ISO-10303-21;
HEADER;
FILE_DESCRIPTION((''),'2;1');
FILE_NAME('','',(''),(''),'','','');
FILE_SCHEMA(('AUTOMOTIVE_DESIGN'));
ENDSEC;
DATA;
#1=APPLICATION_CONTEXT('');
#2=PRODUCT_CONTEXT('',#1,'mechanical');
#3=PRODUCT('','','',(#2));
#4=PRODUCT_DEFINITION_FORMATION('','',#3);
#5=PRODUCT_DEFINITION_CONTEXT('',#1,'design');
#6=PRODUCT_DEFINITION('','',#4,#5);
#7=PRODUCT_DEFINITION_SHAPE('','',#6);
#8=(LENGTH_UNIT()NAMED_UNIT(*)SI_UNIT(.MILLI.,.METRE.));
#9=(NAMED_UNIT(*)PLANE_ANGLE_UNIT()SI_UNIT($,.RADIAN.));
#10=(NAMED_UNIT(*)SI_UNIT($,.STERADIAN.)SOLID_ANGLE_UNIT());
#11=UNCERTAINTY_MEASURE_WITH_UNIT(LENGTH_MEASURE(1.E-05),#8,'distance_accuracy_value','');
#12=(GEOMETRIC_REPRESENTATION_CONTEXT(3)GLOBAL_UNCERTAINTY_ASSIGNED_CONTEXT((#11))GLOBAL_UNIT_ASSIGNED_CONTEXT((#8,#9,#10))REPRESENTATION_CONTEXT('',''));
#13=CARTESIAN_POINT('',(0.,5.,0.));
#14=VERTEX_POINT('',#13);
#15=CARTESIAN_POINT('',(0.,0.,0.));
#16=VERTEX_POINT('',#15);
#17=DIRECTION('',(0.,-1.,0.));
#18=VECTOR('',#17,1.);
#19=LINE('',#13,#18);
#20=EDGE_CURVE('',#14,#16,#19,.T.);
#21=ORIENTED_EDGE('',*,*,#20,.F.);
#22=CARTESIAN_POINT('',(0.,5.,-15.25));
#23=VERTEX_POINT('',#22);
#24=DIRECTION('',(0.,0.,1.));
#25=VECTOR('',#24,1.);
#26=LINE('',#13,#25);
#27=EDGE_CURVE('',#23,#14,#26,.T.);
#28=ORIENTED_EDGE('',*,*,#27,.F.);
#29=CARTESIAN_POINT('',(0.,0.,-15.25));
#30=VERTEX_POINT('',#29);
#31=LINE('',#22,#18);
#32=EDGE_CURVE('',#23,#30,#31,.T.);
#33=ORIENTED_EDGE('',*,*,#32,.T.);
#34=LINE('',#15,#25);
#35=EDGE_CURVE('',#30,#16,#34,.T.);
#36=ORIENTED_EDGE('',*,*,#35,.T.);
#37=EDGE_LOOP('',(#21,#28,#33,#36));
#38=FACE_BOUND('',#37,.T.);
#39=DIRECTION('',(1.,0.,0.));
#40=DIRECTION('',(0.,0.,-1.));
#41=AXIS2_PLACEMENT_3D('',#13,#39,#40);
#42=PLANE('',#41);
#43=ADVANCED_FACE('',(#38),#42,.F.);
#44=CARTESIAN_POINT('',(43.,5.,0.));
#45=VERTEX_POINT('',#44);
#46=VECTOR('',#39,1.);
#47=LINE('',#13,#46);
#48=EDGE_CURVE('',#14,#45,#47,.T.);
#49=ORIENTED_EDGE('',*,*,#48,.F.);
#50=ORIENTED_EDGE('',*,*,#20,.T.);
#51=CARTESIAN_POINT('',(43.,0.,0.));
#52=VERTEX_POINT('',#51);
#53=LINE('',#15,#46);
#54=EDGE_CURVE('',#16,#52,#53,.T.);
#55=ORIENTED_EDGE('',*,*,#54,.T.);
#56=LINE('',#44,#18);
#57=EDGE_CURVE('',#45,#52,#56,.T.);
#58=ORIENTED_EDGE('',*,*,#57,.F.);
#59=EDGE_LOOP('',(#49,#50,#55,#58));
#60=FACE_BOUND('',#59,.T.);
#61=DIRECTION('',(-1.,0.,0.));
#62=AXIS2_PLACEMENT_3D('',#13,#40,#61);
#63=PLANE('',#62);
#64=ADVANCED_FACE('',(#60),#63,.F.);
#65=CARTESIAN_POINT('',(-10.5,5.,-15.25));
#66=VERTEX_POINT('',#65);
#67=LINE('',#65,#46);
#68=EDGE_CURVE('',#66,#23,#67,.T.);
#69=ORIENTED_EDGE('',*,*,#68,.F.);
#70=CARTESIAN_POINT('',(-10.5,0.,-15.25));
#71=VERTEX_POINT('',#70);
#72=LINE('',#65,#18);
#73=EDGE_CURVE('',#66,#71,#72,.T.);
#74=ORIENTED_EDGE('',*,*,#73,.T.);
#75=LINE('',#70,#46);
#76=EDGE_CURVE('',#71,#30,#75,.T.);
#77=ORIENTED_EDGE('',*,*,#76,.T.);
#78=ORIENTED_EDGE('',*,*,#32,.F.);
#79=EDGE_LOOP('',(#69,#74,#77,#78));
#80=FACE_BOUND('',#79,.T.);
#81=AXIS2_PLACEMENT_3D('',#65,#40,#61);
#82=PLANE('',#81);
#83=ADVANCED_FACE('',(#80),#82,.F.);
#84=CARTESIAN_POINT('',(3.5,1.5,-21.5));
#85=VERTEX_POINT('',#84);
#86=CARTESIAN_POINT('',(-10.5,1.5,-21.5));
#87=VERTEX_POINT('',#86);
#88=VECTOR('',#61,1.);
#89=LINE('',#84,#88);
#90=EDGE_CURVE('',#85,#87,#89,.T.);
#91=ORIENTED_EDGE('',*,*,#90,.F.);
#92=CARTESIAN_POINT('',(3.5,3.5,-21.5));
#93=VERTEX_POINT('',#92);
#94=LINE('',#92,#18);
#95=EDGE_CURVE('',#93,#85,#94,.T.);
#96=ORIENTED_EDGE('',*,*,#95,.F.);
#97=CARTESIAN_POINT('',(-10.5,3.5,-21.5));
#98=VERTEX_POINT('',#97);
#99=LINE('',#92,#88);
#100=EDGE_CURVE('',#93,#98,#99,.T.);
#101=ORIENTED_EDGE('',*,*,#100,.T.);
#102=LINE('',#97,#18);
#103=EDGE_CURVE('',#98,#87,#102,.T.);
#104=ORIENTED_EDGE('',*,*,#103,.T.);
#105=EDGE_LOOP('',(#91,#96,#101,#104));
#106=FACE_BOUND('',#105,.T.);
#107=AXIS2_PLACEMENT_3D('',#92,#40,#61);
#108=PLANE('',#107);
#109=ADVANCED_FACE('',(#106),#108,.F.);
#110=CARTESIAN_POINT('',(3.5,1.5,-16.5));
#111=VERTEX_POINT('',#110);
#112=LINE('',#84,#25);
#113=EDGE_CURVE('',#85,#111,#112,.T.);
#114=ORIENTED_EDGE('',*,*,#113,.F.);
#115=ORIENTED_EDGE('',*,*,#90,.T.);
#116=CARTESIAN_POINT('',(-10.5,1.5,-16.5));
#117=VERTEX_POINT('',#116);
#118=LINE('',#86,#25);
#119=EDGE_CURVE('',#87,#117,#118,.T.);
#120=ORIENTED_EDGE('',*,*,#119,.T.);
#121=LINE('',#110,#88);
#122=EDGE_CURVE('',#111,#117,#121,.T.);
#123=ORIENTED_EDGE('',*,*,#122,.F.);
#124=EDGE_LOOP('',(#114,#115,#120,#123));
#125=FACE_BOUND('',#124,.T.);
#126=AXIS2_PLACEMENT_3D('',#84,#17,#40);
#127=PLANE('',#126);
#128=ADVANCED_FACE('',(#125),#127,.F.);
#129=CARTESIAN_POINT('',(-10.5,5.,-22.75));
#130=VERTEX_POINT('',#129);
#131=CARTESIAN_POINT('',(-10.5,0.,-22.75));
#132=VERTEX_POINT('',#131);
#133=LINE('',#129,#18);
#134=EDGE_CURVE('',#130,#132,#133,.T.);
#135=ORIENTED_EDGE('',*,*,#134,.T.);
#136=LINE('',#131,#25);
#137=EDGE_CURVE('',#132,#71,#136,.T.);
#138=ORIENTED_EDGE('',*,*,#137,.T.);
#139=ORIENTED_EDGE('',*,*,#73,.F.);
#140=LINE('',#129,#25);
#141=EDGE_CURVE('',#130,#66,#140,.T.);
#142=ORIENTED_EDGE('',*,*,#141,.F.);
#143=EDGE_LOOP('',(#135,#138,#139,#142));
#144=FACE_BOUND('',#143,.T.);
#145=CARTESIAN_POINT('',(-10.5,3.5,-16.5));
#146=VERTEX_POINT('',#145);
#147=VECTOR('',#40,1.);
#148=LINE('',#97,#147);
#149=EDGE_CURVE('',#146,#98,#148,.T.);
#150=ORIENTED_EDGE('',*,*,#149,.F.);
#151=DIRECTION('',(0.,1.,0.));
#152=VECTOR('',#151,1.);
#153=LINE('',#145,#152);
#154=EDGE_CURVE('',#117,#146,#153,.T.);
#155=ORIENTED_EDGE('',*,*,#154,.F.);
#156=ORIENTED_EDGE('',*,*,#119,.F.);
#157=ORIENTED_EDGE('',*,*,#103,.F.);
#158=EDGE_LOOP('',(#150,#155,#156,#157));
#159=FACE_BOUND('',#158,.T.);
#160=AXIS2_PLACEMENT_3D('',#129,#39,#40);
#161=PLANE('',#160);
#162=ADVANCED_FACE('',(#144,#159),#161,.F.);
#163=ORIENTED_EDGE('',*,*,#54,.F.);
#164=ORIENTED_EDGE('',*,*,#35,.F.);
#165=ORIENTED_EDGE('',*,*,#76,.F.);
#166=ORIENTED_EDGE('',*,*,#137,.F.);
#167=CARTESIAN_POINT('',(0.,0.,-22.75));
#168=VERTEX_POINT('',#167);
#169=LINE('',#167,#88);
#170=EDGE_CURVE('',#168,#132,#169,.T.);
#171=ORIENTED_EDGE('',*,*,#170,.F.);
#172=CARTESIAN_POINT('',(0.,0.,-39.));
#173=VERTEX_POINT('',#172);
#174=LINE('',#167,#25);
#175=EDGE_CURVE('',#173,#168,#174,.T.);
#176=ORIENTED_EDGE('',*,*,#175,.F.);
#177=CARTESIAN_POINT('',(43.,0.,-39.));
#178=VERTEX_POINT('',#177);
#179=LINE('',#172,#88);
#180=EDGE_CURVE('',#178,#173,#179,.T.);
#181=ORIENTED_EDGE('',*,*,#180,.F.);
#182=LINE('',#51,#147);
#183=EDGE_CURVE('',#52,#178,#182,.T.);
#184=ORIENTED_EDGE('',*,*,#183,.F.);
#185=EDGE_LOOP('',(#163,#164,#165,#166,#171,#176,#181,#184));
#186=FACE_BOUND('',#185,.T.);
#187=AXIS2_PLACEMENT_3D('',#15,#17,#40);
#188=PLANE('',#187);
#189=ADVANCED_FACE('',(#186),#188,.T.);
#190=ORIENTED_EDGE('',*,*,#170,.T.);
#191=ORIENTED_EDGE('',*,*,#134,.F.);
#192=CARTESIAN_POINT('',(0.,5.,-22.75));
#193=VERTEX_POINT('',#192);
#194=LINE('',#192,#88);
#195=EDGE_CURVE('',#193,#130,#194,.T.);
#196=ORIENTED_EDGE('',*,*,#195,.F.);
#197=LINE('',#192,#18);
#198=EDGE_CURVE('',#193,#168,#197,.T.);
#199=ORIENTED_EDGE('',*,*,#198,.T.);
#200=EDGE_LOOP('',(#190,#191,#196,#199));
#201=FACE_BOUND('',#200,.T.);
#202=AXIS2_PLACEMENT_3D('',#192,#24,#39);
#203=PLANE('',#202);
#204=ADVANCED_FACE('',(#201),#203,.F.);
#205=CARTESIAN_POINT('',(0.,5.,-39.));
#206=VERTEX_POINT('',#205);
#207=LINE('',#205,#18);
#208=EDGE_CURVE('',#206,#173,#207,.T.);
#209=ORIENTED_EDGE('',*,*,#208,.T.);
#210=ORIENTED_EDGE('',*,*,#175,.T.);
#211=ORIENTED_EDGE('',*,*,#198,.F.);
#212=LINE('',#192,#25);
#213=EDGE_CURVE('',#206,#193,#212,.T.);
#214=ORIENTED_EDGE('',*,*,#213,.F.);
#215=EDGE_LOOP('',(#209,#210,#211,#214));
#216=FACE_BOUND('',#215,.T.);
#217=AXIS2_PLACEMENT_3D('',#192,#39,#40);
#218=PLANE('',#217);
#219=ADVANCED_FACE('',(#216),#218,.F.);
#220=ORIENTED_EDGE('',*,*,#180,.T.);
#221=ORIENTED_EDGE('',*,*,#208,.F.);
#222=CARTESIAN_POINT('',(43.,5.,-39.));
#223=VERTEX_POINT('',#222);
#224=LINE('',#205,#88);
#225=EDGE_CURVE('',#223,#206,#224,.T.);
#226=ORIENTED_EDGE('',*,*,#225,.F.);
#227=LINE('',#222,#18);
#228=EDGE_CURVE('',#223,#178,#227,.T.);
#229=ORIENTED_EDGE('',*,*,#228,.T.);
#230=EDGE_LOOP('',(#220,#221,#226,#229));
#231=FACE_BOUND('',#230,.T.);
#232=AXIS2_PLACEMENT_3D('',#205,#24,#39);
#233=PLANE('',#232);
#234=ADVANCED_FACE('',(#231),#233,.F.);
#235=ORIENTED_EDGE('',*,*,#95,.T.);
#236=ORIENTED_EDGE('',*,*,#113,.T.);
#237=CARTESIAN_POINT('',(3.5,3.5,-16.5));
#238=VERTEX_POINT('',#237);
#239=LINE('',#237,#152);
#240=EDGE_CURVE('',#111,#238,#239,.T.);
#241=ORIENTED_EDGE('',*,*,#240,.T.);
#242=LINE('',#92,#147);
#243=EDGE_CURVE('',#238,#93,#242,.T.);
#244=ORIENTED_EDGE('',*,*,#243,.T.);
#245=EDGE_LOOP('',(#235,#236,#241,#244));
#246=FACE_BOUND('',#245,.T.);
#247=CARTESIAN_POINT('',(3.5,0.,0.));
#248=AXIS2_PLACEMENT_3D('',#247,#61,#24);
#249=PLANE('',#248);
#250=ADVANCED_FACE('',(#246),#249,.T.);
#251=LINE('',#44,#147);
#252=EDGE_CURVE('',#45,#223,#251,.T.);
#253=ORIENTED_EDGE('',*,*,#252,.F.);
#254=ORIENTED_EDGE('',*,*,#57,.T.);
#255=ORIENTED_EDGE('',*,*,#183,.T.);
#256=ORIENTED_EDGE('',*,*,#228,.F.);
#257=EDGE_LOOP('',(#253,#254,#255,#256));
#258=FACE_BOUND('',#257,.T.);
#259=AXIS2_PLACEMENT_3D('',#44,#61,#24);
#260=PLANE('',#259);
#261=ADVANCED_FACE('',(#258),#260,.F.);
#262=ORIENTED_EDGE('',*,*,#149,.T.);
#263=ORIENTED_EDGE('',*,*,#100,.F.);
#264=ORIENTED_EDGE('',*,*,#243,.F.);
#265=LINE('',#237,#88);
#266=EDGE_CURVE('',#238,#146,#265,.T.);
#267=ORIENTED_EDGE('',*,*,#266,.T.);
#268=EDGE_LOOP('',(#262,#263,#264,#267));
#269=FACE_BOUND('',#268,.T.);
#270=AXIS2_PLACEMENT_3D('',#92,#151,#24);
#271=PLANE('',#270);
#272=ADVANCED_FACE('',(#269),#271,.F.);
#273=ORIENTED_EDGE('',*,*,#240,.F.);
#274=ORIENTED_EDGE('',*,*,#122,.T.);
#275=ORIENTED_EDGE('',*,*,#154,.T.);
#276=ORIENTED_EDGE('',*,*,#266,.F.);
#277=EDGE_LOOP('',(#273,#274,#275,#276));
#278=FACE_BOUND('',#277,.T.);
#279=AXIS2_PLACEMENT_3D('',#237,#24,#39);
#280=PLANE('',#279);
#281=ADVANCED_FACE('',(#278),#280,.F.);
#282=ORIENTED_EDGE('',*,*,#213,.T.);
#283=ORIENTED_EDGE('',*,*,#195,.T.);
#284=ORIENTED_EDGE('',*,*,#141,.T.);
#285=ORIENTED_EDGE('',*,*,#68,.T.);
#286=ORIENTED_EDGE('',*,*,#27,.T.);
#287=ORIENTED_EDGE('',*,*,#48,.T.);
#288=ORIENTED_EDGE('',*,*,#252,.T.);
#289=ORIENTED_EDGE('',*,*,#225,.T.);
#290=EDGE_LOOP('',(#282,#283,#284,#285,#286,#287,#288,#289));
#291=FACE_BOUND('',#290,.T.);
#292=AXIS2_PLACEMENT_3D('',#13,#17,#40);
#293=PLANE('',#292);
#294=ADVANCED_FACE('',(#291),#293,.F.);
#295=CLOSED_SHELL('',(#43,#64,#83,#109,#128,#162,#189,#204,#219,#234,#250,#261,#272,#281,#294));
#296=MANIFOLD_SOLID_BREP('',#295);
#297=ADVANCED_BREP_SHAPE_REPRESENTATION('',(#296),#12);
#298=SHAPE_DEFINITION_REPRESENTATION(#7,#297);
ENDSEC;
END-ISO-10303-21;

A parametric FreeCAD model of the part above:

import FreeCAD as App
import Part
import Sketcher

V = App.Vector
Q = App.Units.Quantity


def add_polygon(sketch, points):
    """Adds a closed chain of lines whose ends are joined by coincident constraints."""
    first, n = sketch.GeometryCount, len(points)
    for a, b in zip(points, points[1:] + points[:1]):
        sketch.addGeometry(Part.LineSegment(App.Vector(*a, 0), App.Vector(*b, 0)), False)
    for i in range(n):
        sketch.addConstraint(Sketcher.Constraint("Coincident", first + i, 2, first + (i + 1) % n, 1))

doc = App.newDocument("Part")
body = doc.addObject("PartDesign::Body", "Body")

# Sketch on XZ plane
sketch1 = doc.addObject("Sketcher::SketchObject", "Sketch")
body.addObject(sketch1)
sketch1.AttachmentSupport = (doc.XZ_Plane, [""])
sketch1.MapMode = "FlatFace"
add_polygon(sketch1, [(0, -23), (-10, -23), (-10, -15), (0, -15), (0, 0), (43, 0), (43, -39), (0, -39)])  # lines 0-7
sketch1.addConstraint([
    Sketcher.Constraint("Horizontal", 0),
    Sketcher.Constraint("Vertical", 1),
    Sketcher.Constraint("Horizontal", 2),
    Sketcher.Constraint("Vertical", 3),
    Sketcher.Constraint("Horizontal", 4),
    Sketcher.Constraint("Vertical", 5),
    Sketcher.Constraint("Horizontal", 6),
    Sketcher.Constraint("Vertical", 7),
    Sketcher.Constraint("Coincident", 3, 2, -1, 1),
    Sketcher.Constraint("PointOnObject", 6, 2, -2),
    Sketcher.Constraint("DistanceX", 4, 1, 4, 2, Q("43 mm")),
    Sketcher.Constraint("DistanceY", 5, 2, 5, 1, Q("39 mm")),
    Sketcher.Constraint("DistanceX", 0, 2, 0, 1, Q("10.5 mm")),
    Sketcher.Constraint("DistanceY", 1, 1, 1, 2, Q("7.5 mm")),
    Sketcher.Constraint("DistanceY", 3, 1, 3, 2, Q("15.25 mm")),
])
pad1 = doc.addObject("PartDesign::Pad", "Pad")
body.addObject(pad1)
pad1.Profile = sketch1
pad1.Length = 5
pad1.Reversed = True

# Sketch on YZ plane
sketch2 = doc.addObject("Sketcher::SketchObject", "Sketch001")
body.addObject(sketch2)
sketch2.AttachmentSupport = (doc.YZ_Plane, [""])
sketch2.MapMode = "FlatFace"
sketch2.AttachmentOffset = App.Placement(V(0, 0, -10.5), App.Rotation())
add_polygon(sketch2, [(3.5, -21.5), (1.5, -21.5), (1.5, -16.5), (3.5, -16.5)])  # lines 0-3
sketch2.addConstraint([
    Sketcher.Constraint("Horizontal", 0),
    Sketcher.Constraint("Vertical", 1),
    Sketcher.Constraint("Horizontal", 2),
    Sketcher.Constraint("Vertical", 3),
    Sketcher.Constraint("DistanceX", 0, 2, 0, 1, Q("2 mm")),
    Sketcher.Constraint("DistanceY", 1, 1, 1, 2, Q("5 mm")),
    Sketcher.Constraint("DistanceX", -1, 1, 0, 2, Q("1.5 mm")),
    Sketcher.Constraint("DistanceY", 0, 2, -1, 1, Q("21.5 mm")),
])
pocket1 = doc.addObject("PartDesign::Pocket", "Pocket")
body.addObject(pocket1)
pocket1.Profile = sketch2
pocket1.Length = 14
pocket1.Reversed = True

doc.recompute()
